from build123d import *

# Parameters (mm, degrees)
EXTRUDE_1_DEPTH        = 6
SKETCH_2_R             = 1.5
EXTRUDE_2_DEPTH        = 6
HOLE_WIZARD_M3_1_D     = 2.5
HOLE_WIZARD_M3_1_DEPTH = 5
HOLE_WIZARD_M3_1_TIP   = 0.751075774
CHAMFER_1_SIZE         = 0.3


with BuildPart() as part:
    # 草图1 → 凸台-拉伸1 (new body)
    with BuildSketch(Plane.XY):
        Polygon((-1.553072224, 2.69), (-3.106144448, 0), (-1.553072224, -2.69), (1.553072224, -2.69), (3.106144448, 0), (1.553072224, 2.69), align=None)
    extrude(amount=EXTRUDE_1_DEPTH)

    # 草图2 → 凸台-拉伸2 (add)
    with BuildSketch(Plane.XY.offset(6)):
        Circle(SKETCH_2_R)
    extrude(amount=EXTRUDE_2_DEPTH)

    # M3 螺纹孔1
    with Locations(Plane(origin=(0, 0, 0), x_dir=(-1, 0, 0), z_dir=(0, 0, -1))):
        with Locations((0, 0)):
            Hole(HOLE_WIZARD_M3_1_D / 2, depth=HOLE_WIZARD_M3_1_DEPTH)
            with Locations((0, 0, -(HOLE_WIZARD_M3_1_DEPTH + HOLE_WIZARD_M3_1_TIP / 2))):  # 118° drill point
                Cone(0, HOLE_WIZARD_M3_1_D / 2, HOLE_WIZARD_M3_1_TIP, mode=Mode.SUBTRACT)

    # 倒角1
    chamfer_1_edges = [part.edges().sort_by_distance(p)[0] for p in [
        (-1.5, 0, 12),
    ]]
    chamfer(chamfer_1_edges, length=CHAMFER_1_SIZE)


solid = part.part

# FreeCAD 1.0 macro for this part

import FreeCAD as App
import Part
import Sketcher
Q = App.Units.Quantity


def edges_at(feature, points):
    """Names of the edges that pass closest to the given points."""
    edges = feature.Shape.Edges
    near = lambda p: min(range(len(edges)), key=lambda i: edges[i].distToShape(Part.Vertex(*p))[0])
    return sorted({f"Edge{near(p) + 1}" for p in points})


def add_polygon(sketch, points):
    """Adds a closed chain of lines whose ends are joined by coincident constraints."""
    first, n = sketch.GeometryCount, len(points)
    for a, b in zip(points, points[1:] + points[:1]):
        sketch.addGeometry(Part.LineSegment(App.Vector(*a, 0), App.Vector(*b, 0)), False)
    for i in range(n):
        sketch.addConstraint(Sketcher.Constraint("Coincident", first + i, 2, first + (i + 1) % n, 1))

doc = App.newDocument("Part")
body = doc.addObject("PartDesign::Body", "Body")

sketch1 = body.newObject("Sketcher::SketchObject", "Sketch")
sketch1.AttachmentSupport = (doc.getObject("XY_Plane"), [""])
sketch1.MapMode = "FlatFace"
add_polygon(sketch1, [(-1.6, 2.7), (-3.1, 0), (-1.6, -2.7), (1.6, -2.7), (3.1, 0), (1.6, 2.7)])
sketch1.addConstraint([
    Sketcher.Constraint("Horizontal", 2),
    Sketcher.Constraint("Horizontal", 5),
    Sketcher.Constraint("Symmetric", 0, 2, 3, 2, -1, 1),
    Sketcher.Constraint("Symmetric", 1, 2, 4, 2, -1, 1),
    Sketcher.Constraint("PointOnObject", 0, 2, -1),
    Sketcher.Constraint("Parallel", 0, 3),
    Sketcher.Constraint("Vertical", 2, 2, 4, 2),
    Sketcher.Constraint("Angle", 0, Q("-120 deg")),
    Sketcher.Constraint("DistanceY", 1, 2, -1, 1, 2.69),
    Sketcher.Constraint("DistanceX", 2, 1, 2, 2, 3.106144),
])
pad1 = body.newObject("PartDesign::Pad", "Pad")
pad1.Profile = sketch1
pad1.Length = 6

sketch2 = body.newObject("Sketcher::SketchObject", "Sketch001")
sketch2.AttachmentSupport = (doc.getObject("XY_Plane"), [""])
sketch2.MapMode = "FlatFace"
sketch2.AttachmentOffset = App.Placement(App.Vector(0, 0, 6), App.Rotation())
sketch2.addGeometry(Part.Circle(App.Vector(0, 0, 0), App.Vector(0, 0, 1), 1.5), False)
sketch2.addConstraint([
    Sketcher.Constraint("Coincident", 0, 3, -1, 1),
    Sketcher.Constraint("Diameter", 0, 3.0),
])
pad2 = body.newObject("PartDesign::Pad", "Pad001")
pad2.Profile = sketch2
pad2.Length = 6

sketch3 = body.newObject("Sketcher::SketchObject", "Sketch002")
sketch3.AttachmentSupport = (doc.getObject("XY_Plane"), [""])
sketch3.MapMode = "FlatFace"
sketch3.addGeometry(Part.Circle(App.Vector(0, 0, 0), App.Vector(0, 0, 1), 1.2), False)
sketch3.addConstraint([
    Sketcher.Constraint("Coincident", 0, 3, -1, 1),
    Sketcher.Constraint("Diameter", 0, 2.5),
])
doc.recompute()
hole = body.newObject("PartDesign::Hole", "Hole")
hole.Profile = sketch3
hole.ThreadType = "None"
hole.Diameter = 2.5
hole.DepthType = "Dimension"
hole.Depth = 5
hole.DrillPoint = "Angled"
hole.DrillPointAngle = 118
hole.Reversed = True
doc.recompute()

chamfer = body.newObject("PartDesign::Chamfer", "Chamfer")
chamfer.Base = (hole, edges_at(hole, [(-1.5, 0, 12)]))
chamfer.Size = 0.3

doc.recompute()
